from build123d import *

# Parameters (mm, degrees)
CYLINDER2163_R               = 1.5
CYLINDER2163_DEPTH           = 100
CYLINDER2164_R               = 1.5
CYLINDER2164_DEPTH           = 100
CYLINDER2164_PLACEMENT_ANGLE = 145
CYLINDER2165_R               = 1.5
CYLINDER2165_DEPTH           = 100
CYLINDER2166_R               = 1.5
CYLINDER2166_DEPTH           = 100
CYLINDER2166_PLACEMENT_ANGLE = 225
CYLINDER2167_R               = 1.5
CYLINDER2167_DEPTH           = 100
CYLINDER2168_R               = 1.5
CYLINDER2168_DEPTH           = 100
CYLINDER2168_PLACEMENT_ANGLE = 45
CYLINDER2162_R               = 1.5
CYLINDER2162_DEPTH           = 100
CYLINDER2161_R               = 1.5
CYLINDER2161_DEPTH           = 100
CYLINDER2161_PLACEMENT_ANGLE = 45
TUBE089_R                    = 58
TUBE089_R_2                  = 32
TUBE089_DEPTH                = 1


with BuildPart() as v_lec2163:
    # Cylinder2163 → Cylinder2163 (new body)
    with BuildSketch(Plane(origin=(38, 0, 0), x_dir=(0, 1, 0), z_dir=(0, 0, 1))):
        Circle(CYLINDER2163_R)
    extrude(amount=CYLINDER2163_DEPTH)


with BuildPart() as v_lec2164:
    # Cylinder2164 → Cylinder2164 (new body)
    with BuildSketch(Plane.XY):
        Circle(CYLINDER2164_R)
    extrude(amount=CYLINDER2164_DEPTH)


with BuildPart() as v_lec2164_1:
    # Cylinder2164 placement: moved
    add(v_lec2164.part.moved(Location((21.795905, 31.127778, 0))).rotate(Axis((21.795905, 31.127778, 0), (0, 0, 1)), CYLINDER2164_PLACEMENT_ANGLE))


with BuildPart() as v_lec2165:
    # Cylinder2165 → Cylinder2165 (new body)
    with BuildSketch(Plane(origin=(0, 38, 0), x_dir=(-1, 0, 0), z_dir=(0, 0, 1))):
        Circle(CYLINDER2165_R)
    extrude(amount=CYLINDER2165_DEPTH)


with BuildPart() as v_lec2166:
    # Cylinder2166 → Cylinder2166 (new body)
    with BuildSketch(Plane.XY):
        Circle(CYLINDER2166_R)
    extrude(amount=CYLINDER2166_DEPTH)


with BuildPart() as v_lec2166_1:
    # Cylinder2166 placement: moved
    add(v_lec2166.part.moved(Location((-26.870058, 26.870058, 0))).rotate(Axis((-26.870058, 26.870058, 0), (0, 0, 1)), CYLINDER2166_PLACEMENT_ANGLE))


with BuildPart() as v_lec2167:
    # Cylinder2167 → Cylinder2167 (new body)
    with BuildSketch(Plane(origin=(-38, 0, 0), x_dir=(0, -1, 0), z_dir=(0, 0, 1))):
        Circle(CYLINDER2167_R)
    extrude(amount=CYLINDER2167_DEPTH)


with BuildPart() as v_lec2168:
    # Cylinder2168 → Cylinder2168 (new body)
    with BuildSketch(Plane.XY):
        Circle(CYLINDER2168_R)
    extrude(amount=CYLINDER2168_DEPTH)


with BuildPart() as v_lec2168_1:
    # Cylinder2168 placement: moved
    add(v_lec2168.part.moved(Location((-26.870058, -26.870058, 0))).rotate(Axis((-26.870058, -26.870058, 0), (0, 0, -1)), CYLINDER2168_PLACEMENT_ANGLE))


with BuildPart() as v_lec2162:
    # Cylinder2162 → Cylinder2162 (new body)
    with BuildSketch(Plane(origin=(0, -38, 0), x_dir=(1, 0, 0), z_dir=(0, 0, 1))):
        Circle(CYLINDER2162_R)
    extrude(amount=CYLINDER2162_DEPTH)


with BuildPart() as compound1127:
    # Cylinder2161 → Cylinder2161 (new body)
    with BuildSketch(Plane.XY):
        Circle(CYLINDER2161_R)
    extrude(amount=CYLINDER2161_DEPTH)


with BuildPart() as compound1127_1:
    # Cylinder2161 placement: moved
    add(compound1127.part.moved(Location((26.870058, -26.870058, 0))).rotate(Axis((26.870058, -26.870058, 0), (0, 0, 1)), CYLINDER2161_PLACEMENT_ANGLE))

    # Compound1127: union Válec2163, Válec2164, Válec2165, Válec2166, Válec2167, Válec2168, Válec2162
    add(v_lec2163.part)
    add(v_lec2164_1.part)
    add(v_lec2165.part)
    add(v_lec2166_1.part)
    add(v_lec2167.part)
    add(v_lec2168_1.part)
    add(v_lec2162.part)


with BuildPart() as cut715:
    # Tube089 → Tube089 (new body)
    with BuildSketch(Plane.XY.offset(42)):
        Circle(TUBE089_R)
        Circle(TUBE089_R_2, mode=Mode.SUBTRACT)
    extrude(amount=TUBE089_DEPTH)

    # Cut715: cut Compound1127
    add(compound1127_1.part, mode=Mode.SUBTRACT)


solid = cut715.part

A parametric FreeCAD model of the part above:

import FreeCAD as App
import Part
import Sketcher

V = App.Vector

doc = App.newDocument("Part")
params = doc.addObject("Spreadsheet::Sheet", "Params")
for row, (alias, value) in enumerate([
    ("sketch1_diameter", "3 mm"),
    ("pad1_length", "100 mm"),
    ("sketch2_diameter", "3 mm"),
    ("pad2_length", "100 mm"),
    ("sketch3_diameter", "3 mm"),
    ("pad3_length", "100 mm"),
    ("sketch4_diameter", "3 mm"),
    ("pad4_length", "100 mm"),
    ("sketch5_diameter", "3 mm"),
    ("pad5_length", "100 mm"),
    ("sketch6_diameter", "3 mm"),
    ("pad6_length", "100 mm"),
    ("sketch7_diameter", "3 mm"),
    ("pad7_length", "100 mm"),
    ("sketch8_diameter", "3 mm"),
    ("pad8_length", "100 mm"),
    ("sketch9_diameter", "116 mm"),
    ("sketch9_diameter2", "64 mm"),
    ("pad9_length", "1 mm"),
], start=1):
    params.set(f"A{row}", alias)
    params.set(f"B{row}", "=" + value)
    params.setAlias(f"B{row}", alias)

body = doc.addObject("PartDesign::Body", "Body")

sketch1 = doc.addObject("Sketcher::SketchObject", "Sketch")
body.addObject(sketch1)
sketch1.AttachmentSupport = (doc.XY_Plane, [""])
sketch1.MapMode = "FlatFace"
sketch1.addGeometry(Part.Circle(V(38, 0, 0), V(0, 0, 1), 1.5), False)
sketch1.addConstraint([
    Sketcher.Constraint("PointOnObject", 0, 3, -1),
    Sketcher.Constraint("Diameter", 0, 3.0),
    Sketcher.Constraint("DistanceX", -1, 1, 0, 3, 38.0),
])
sketch1.setExpression("Constraints[1]", "Params.sketch1_diameter")
pad1 = doc.addObject("PartDesign::Pad", "Pad")
body.addObject(pad1)
pad1.Profile = sketch1
pad1.setExpression("Length", "Params.pad1_length")
body2 = doc.addObject("PartDesign::Body", "Body001")

sketch2 = doc.addObject("Sketcher::SketchObject", "Sketch001")
body2.addObject(sketch2)
sketch2.AttachmentSupport = (doc.getObject("XY_Plane001"), [""])
sketch2.MapMode = "FlatFace"
sketch2.addGeometry(Part.Circle(V(0, 0, 0), V(0, 0, 1), 1.5), False)
sketch2.addConstraint([
    Sketcher.Constraint("Coincident", 0, 3, -1, 1),
    Sketcher.Constraint("Diameter", 0, 3.0),
])
sketch2.setExpression("Constraints[1]", "Params.sketch2_diameter")
pad2 = doc.addObject("PartDesign::Pad", "Pad001")
body2.addObject(pad2)
pad2.Profile = sketch2
pad2.setExpression("Length", "Params.pad2_length")
body3 = doc.addObject("PartDesign::Body", "Body002")
doc.recompute()

body2.Placement = App.Placement(V(21.795905, 31.127778, 0), App.Rotation(V(0, 0, 1), 145))
boolean = doc.addObject("PartDesign::Boolean", "Boolean")
body3.addObject(boolean)
boolean.Type = "Fuse"
boolean.addObjects([body2])
body4 = doc.addObject("PartDesign::Body", "Body003")

sketch3 = doc.addObject("Sketcher::SketchObject", "Sketch002")
body4.addObject(sketch3)
sketch3.AttachmentSupport = (doc.getObject("XY_Plane003"), [""])
sketch3.MapMode = "FlatFace"
sketch3.addGeometry(Part.Circle(V(0, 38, 0), V(0, 0, 1), 1.5), False)
sketch3.addConstraint([
    Sketcher.Constraint("PointOnObject", 0, 3, -2),
    Sketcher.Constraint("Diameter", 0, 3.0),
    Sketcher.Constraint("DistanceY", -1, 1, 0, 3, 38.0),
])
sketch3.setExpression("Constraints[1]", "Params.sketch3_diameter")
pad3 = doc.addObject("PartDesign::Pad", "Pad002")
body4.addObject(pad3)
pad3.Profile = sketch3
pad3.setExpression("Length", "Params.pad3_length")
body5 = doc.addObject("PartDesign::Body", "Body004")

sketch4 = doc.addObject("Sketcher::SketchObject", "Sketch003")
body5.addObject(sketch4)
sketch4.AttachmentSupport = (doc.getObject("XY_Plane004"), [""])
sketch4.MapMode = "FlatFace"
sketch4.addGeometry(Part.Circle(V(0, 0, 0), V(0, 0, 1), 1.5), False)
sketch4.addConstraint([
    Sketcher.Constraint("Coincident", 0, 3, -1, 1),
    Sketcher.Constraint("Diameter", 0, 3.0),
])
sketch4.setExpression("Constraints[1]", "Params.sketch4_diameter")
pad4 = doc.addObject("PartDesign::Pad", "Pad003")
body5.addObject(pad4)
pad4.Profile = sketch4
pad4.setExpression("Length", "Params.pad4_length")
body6 = doc.addObject("PartDesign::Body", "Body005")
doc.recompute()

body5.Placement = App.Placement(V(-26.870058, 26.870058, 0), App.Rotation(V(0, 0, 1), 225))
boolean2 = doc.addObject("PartDesign::Boolean", "Boolean001")
body6.addObject(boolean2)
boolean2.Type = "Fuse"
boolean2.addObjects([body5])
body7 = doc.addObject("PartDesign::Body", "Body006")

sketch5 = doc.addObject("Sketcher::SketchObject", "Sketch004")
body7.addObject(sketch5)
sketch5.AttachmentSupport = (doc.getObject("XY_Plane006"), [""])
sketch5.MapMode = "FlatFace"
sketch5.addGeometry(Part.Circle(V(-38, 0, 0), V(0, 0, 1), 1.5), False)
sketch5.addConstraint([
    Sketcher.Constraint("PointOnObject", 0, 3, -1),
    Sketcher.Constraint("Diameter", 0, 3.0),
    Sketcher.Constraint("DistanceX", 0, 3, -1, 1, 38.0),
])
sketch5.setExpression("Constraints[1]", "Params.sketch5_diameter")
pad5 = doc.addObject("PartDesign::Pad", "Pad004")
body7.addObject(pad5)
pad5.Profile = sketch5
pad5.setExpression("Length", "Params.pad5_length")
body8 = doc.addObject("PartDesign::Body", "Body007")

sketch6 = doc.addObject("Sketcher::SketchObject", "Sketch005")
body8.addObject(sketch6)
sketch6.AttachmentSupport = (doc.getObject("XY_Plane007"), [""])
sketch6.MapMode = "FlatFace"
sketch6.addGeometry(Part.Circle(V(0, 0, 0), V(0, 0, 1), 1.5), False)
sketch6.addConstraint([
    Sketcher.Constraint("Coincident", 0, 3, -1, 1),
    Sketcher.Constraint("Diameter", 0, 3.0),
])
sketch6.setExpression("Constraints[1]", "Params.sketch6_diameter")
pad6 = doc.addObject("PartDesign::Pad", "Pad005")
body8.addObject(pad6)
pad6.Profile = sketch6
pad6.setExpression("Length", "Params.pad6_length")
body9 = doc.addObject("PartDesign::Body", "Body008")
doc.recompute()

body8.Placement = App.Placement(V(-26.870058, -26.870058, 0), App.Rotation(V(0, 0, -1), 45))
boolean3 = doc.addObject("PartDesign::Boolean", "Boolean002")
body9.addObject(boolean3)
boolean3.Type = "Fuse"
boolean3.addObjects([body8])
body10 = doc.addObject("PartDesign::Body", "Body009")

sketch7 = doc.addObject("Sketcher::SketchObject", "Sketch006")
body10.addObject(sketch7)
sketch7.AttachmentSupport = (doc.getObject("XY_Plane009"), [""])
sketch7.MapMode = "FlatFace"
sketch7.addGeometry(Part.Circle(V(0, -38, 0), V(0, 0, 1), 1.5), False)
sketch7.addConstraint([
    Sketcher.Constraint("PointOnObject", 0, 3, -2),
    Sketcher.Constraint("Diameter", 0, 3.0),
    Sketcher.Constraint("DistanceY", 0, 3, -1, 1, 38.0),
])
sketch7.setExpression("Constraints[1]", "Params.sketch7_diameter")
pad7 = doc.addObject("PartDesign::Pad", "Pad006")
body10.addObject(pad7)
pad7.Profile = sketch7
pad7.setExpression("Length", "Params.pad7_length")
body11 = doc.addObject("PartDesign::Body", "Body010")

sketch8 = doc.addObject("Sketcher::SketchObject", "Sketch007")
body11.addObject(sketch8)
sketch8.AttachmentSupport = (doc.getObject("XY_Plane010"), [""])
sketch8.MapMode = "FlatFace"
sketch8.addGeometry(Part.Circle(V(0, 0, 0), V(0, 0, 1), 1.5), False)
sketch8.addConstraint([
    Sketcher.Constraint("Coincident", 0, 3, -1, 1),
    Sketcher.Constraint("Diameter", 0, 3.0),
])
sketch8.setExpression("Constraints[1]", "Params.sketch8_diameter")
pad8 = doc.addObject("PartDesign::Pad", "Pad007")
body11.addObject(pad8)
pad8.Profile = sketch8
pad8.setExpression("Length", "Params.pad8_length")
body12 = doc.addObject("PartDesign::Body", "Body011")
body12.AllowCompound = True
doc.recompute()

body11.Placement = App.Placement(V(26.870058, -26.870058, 0), App.Rotation(V(0, 0, 1), 45))
boolean4 = doc.addObject("PartDesign::Boolean", "Boolean003")
body12.addObject(boolean4)
boolean4.Type = "Fuse"
boolean4.addObjects([body11])
doc.recompute()

boolean5 = doc.addObject("PartDesign::Boolean", "Boolean004")
body12.addObject(boolean5)
boolean5.Type = "Fuse"
boolean5.addObjects([body])
doc.recompute()

boolean6 = doc.addObject("PartDesign::Boolean", "Boolean005")
body12.addObject(boolean6)
boolean6.Type = "Fuse"
boolean6.addObjects([body3])
doc.recompute()

boolean7 = doc.addObject("PartDesign::Boolean", "Boolean006")
body12.addObject(boolean7)
boolean7.Type = "Fuse"
boolean7.addObjects([body4])
doc.recompute()

boolean8 = doc.addObject("PartDesign::Boolean", "Boolean007")
body12.addObject(boolean8)
boolean8.Type = "Fuse"
boolean8.addObjects([body6])
doc.recompute()

boolean9 = doc.addObject("PartDesign::Boolean", "Boolean008")
body12.addObject(boolean9)
boolean9.Type = "Fuse"
boolean9.addObjects([body7])
doc.recompute()

boolean10 = doc.addObject("PartDesign::Boolean", "Boolean009")
body12.addObject(boolean10)
boolean10.Type = "Fuse"
boolean10.addObjects([body9])
doc.recompute()

boolean11 = doc.addObject("PartDesign::Boolean", "Boolean010")
body12.addObject(boolean11)
boolean11.Type = "Fuse"
boolean11.addObjects([body10])
body13 = doc.addObject("PartDesign::Body", "Body012")

sketch9 = doc.addObject("Sketcher::SketchObject", "Sketch008")
body13.addObject(sketch9)
sketch9.AttachmentSupport = (doc.getObject("XY_Plane012"), [""])
sketch9.MapMode = "FlatFace"
sketch9.AttachmentOffset = App.Placement(V(0, 0, 42), App.Rotation())
sketch9.addGeometry([
    Part.Circle(V(0, 0, 0), V(0, 0, 1), 58),
    Part.Circle(V(0, 0, 0), V(0, 0, 1), 32),
], False)
sketch9.addConstraint([
    Sketcher.Constraint("Coincident", 0, 3, -1, 1),
    Sketcher.Constraint("Coincident", 1, 3, -1, 1),
    Sketcher.Constraint("Diameter", 0, 116.0),
    Sketcher.Constraint("Diameter", 1, 64.0),
])
sketch9.setExpression("Constraints[2]", "Params.sketch9_diameter")
sketch9.setExpression("Constraints[3]", "Params.sketch9_diameter2")
pad9 = doc.addObject("PartDesign::Pad", "Pad008")
body13.addObject(pad9)
pad9.Profile = sketch9
pad9.setExpression("Length", "Params.pad9_length")
doc.recompute()

boolean12 = doc.addObject("PartDesign::Boolean", "Boolean011")
body13.addObject(boolean12)
boolean12.Type = "Cut"
boolean12.addObjects([body12])

doc.recompute()
